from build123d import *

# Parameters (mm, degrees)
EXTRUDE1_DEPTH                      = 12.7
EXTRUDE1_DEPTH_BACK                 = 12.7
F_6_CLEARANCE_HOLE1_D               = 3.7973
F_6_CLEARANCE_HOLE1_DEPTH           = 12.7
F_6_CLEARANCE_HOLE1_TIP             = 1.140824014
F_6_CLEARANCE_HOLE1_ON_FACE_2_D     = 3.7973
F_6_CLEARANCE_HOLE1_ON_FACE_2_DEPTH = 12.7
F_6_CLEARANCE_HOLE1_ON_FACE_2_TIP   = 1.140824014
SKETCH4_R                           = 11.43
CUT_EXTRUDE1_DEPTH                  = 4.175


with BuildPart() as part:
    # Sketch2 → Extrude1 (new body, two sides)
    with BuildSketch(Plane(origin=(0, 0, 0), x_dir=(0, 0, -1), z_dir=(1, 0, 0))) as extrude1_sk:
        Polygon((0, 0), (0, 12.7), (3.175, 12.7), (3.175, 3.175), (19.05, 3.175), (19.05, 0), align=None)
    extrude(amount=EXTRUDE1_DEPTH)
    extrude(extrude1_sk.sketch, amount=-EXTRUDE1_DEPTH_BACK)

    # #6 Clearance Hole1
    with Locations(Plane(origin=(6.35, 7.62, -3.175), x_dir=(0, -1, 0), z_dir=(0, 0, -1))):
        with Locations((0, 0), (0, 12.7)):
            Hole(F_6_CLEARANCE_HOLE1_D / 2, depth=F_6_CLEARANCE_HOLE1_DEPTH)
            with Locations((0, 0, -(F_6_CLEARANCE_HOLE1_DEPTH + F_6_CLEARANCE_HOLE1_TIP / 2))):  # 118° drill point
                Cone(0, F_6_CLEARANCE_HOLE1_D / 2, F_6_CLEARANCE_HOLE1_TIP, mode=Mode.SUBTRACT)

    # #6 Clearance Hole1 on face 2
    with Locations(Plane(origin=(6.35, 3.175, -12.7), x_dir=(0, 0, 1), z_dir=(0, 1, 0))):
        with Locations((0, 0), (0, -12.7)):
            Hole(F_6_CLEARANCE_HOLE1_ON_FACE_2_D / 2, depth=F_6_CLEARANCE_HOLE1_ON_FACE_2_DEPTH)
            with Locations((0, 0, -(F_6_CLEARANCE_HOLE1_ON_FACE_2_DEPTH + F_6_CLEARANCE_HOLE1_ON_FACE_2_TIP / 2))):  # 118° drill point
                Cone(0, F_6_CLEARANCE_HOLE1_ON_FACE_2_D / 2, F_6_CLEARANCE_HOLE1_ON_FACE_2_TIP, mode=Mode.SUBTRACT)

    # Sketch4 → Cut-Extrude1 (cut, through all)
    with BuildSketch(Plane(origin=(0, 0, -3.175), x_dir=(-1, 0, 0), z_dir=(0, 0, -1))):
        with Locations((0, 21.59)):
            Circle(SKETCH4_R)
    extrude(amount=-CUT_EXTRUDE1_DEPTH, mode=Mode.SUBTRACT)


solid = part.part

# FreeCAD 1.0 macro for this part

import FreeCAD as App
import Part
import Sketcher

V = App.Vector
Q = App.Units.Quantity

doc = App.newDocument("Part")
params = doc.addObject("Spreadsheet::Sheet", "Params")
for row, (alias, value) in enumerate([
    ("sketch1_width", "0.5 in"),
    ("sketch1_height", "0.75 in"),
    ("sketch1_width2", "0.125 in"),
    ("pad1_length", "0.5 in"),
    ("pad1_length2", "0.5 in"),
    ("hole_diameter", "0.1495 in"),
    ("hole_depth", "0.5 in"),
    ("hole2_diameter", "0.1495 in"),
    ("hole2_depth", "0.5 in"),
    ("sketch4_diameter", "0.9 in"),
], start=1):
    params.set(f"A{row}", alias)
    params.set(f"B{row}", "=" + value)
    params.setAlias(f"B{row}", alias)

body = doc.addObject("PartDesign::Body", "Body")

# Sketch on YZ plane
sketch1 = doc.addObject("Sketcher::SketchObject", "Sketch")
body.addObject(sketch1)
sketch1.AttachmentSupport = (doc.YZ_Plane, [""])
sketch1.MapMode = "FlatFace"
sketch1.addGeometry(Part.LineSegment(V(12.7, 0, 0), V(0, 0, 0)), False)
sketch1.addGeometry(Part.LineSegment(V(0, 0, 0), V(0, -19.1, 0)), False)
sketch1.addGeometry(Part.LineSegment(V(0, -19.1, 0), V(3.2, -19.1, 0)), False)
sketch1.addGeometry(Part.LineSegment(V(3.2, -19.1, 0), V(3.2, -3.2, 0)), False)
sketch1.addGeometry(Part.LineSegment(V(3.2, -3.2, 0), V(12.7, -3.2, 0)), False)
sketch1.addGeometry(Part.LineSegment(V(12.7, -3.2, 0), V(12.7, 0, 0)), False)
sketch1.addConstraint(Sketcher.Constraint("Coincident", 0, 2, 1, 1))
sketch1.addConstraint(Sketcher.Constraint("Coincident", 1, 2, 2, 1))
sketch1.addConstraint(Sketcher.Constraint("Coincident", 2, 2, 3, 1))
sketch1.addConstraint(Sketcher.Constraint("Coincident", 3, 2, 4, 1))
sketch1.addConstraint(Sketcher.Constraint("Coincident", 4, 2, 5, 1))
sketch1.addConstraint(Sketcher.Constraint("Coincident", 5, 2, 0, 1))
sketch1.addConstraint(Sketcher.Constraint("Horizontal", 0))
sketch1.addConstraint(Sketcher.Constraint("Vertical", 1))
sketch1.addConstraint(Sketcher.Constraint("Horizontal", 2))
sketch1.addConstraint(Sketcher.Constraint("Vertical", 3))
sketch1.addConstraint(Sketcher.Constraint("Horizontal", 4))
sketch1.addConstraint(Sketcher.Constraint("Vertical", 5))
sketch1.addConstraint(Sketcher.Constraint("Coincident", 0, 2, -1, 1))
sketch1.addConstraint(Sketcher.Constraint("Equal", 2, 5))
sketch1.addConstraint(Sketcher.Constraint("DistanceX", 0, 2, 0, 1, Q("0.5 in")))
sketch1.addConstraint(Sketcher.Constraint("DistanceY", 1, 2, 1, 1, Q("0.75 in")))
sketch1.addConstraint(Sketcher.Constraint("DistanceX", 2, 1, 2, 2, Q("0.125 in")))
sketch1.setExpression("Constraints[14]", "Params.sketch1_width")
sketch1.setExpression("Constraints[15]", "Params.sketch1_height")
sketch1.setExpression("Constraints[16]", "Params.sketch1_width2")
pad1 = doc.addObject("PartDesign::Pad", "Pad")
body.addObject(pad1)
pad1.Profile = sketch1
pad1.Type = "TwoLengths"
pad1.setExpression("Length", "Params.pad1_length")
pad1.setExpression("Length2", "Params.pad1_length2")

# Sketch on XY plane
sketch2 = doc.addObject("Sketcher::SketchObject", "Sketch001")
body.addObject(sketch2)
sketch2.AttachmentSupport = (doc.XY_Plane, [""])
sketch2.MapMode = "FlatFace"
sketch2.AttachmentOffset = App.Placement(V(0, 0, -0.125 * 25.4), App.Rotation())
sketch2.addGeometry(Part.Circle(V(6.3, 7.6, 0), V(0, 0, 1), 1.9), False)
sketch2.addGeometry(Part.Circle(V(-6.3, 7.6, 0), V(0, 0, 1), 1.9), False)
sketch2.addConstraint(Sketcher.Constraint("Equal", 0, 1))
sketch2.addConstraint(Sketcher.Constraint("Symmetric", 0, 3, 1, 3, -2))
sketch2.addConstraint(Sketcher.Constraint("Diameter", 0, Q("0.1495 in")))
sketch2.addConstraint(Sketcher.Constraint("DistanceY", -1, 1, 0, 3, Q("0.3 in")))
sketch2.addConstraint(Sketcher.Constraint("DistanceX", 1, 3, 0, 3, Q("0.5 in")))
doc.recompute()
hole = doc.addObject("PartDesign::Hole", "Hole")
body.addObject(hole)
hole.Profile = sketch2
hole.ThreadType = "None"
hole.setExpression("Diameter", "Params.hole_diameter")
hole.DepthType = "Dimension"
hole.setExpression("Depth", "Params.hole_depth")
hole.DrillPoint = "Angled"
hole.DrillPointAngle = 118
hole.Reversed = True

# Sketch on XZ plane
sketch3 = doc.addObject("Sketcher::SketchObject", "Sketch002")
body.addObject(sketch3)
sketch3.AttachmentSupport = (doc.XZ_Plane, [""])
sketch3.MapMode = "FlatFace"
sketch3.AttachmentOffset = App.Placement(V(0, 0, -0.125 * 25.4), App.Rotation())
sketch3.addGeometry(Part.Circle(V(6.3, -12.7, 0), V(0, 0, 1), 1.9), False)
sketch3.addGeometry(Part.Circle(V(-6.3, -12.7, 0), V(0, 0, 1), 1.9), False)
sketch3.addConstraint(Sketcher.Constraint("Equal", 0, 1))
sketch3.addConstraint(Sketcher.Constraint("Symmetric", 0, 3, 1, 3, -2))
sketch3.addConstraint(Sketcher.Constraint("Diameter", 0, Q("0.1495 in")))
sketch3.addConstraint(Sketcher.Constraint("DistanceY", 0, 3, -1, 1, Q("0.5 in")))
sketch3.addConstraint(Sketcher.Constraint("DistanceX", 1, 3, 0, 3, Q("0.5 in")))
doc.recompute()
hole2 = doc.addObject("PartDesign::Hole", "Hole001")
body.addObject(hole2)
hole2.Profile = sketch3
hole2.ThreadType = "None"
hole2.setExpression("Diameter", "Params.hole2_diameter")
hole2.DepthType = "Dimension"
hole2.setExpression("Depth", "Params.hole2_depth")
hole2.DrillPoint = "Angled"
hole2.DrillPointAngle = 118
hole2.Reversed = True

# Sketch on XY plane
sketch4 = doc.addObject("Sketcher::SketchObject", "Sketch003")
body.addObject(sketch4)
sketch4.AttachmentSupport = (doc.XY_Plane, [""])
sketch4.MapMode = "FlatFace"
sketch4.AttachmentOffset = App.Placement(V(0, 0, -0.125 * 25.4), App.Rotation())
sketch4.addGeometry(Part.Circle(V(0, 22, 0), V(0, 0, 1), 11), False)
sketch4.addConstraint(Sketcher.Constraint("PointOnObject", 0, 3, -2))
sketch4.addConstraint(Sketcher.Constraint("Diameter", 0, Q("0.9 in")))
sketch4.addConstraint(Sketcher.Constraint("DistanceY", -1, 1, 0, 3, Q("0.85 in")))
sketch4.setExpression("Constraints[1]", "Params.sketch4_diameter")
pocket1 = doc.addObject("PartDesign::Pocket", "Pocket")
body.addObject(pocket1)
pocket1.Profile = sketch4
pocket1.Type = "ThroughAll"
pocket1.Reversed = True

doc.recompute()
